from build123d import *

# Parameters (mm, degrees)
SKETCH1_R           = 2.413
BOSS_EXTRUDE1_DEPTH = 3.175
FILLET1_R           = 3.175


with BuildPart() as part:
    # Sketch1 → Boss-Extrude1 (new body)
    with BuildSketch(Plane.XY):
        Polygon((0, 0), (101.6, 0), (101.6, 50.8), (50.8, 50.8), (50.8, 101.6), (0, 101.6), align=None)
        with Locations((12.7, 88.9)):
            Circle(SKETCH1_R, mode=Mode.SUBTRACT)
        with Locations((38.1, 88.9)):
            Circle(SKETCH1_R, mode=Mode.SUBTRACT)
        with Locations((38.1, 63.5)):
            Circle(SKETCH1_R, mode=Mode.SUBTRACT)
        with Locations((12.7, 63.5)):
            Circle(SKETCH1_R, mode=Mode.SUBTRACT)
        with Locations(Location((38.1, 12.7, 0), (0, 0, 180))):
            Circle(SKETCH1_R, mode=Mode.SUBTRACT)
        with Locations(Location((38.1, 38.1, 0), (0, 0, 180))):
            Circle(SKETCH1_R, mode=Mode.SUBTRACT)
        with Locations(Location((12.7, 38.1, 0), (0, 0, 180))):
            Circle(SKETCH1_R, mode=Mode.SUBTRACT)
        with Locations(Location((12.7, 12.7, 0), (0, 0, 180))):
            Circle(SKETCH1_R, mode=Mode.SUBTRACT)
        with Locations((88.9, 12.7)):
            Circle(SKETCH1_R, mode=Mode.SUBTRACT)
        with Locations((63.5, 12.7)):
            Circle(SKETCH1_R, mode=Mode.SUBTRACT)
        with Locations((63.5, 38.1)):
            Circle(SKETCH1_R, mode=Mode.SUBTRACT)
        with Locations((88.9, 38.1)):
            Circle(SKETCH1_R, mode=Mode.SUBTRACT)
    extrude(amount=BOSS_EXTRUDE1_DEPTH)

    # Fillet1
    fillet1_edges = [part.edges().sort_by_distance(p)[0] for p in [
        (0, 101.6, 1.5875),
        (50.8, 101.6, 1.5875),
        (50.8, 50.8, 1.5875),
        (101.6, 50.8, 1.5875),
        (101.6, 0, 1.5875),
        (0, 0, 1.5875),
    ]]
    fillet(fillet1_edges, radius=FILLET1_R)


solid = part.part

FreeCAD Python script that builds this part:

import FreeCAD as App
import Part
import Sketcher

V = App.Vector
Q = App.Units.Quantity


def edges_at(feature, points):
    """Names of the edges that pass closest to the given points."""
    edges = feature.Shape.Edges
    near = lambda p: min(range(len(edges)), key=lambda i: edges[i].distToShape(Part.Vertex(*p))[0])
    return sorted({f"Edge{near(p) + 1}" for p in points})

doc = App.newDocument("Part")
body = doc.addObject("PartDesign::Body", "Body")

# Sketch on XY plane
sketch1 = body.newObject("Sketcher::SketchObject", "Sketch")
sketch1.AttachmentSupport = (doc.getObject("XY_Plane"), [""])
sketch1.MapMode = "FlatFace"
sketch1.addGeometry([
    Part.LineSegment(V(0, 0, 0), V(101.6, 0, 0)),  # 0
    Part.LineSegment(V(101.6, 0, 0), V(101.6, 50.8, 0)),  # 1
    Part.LineSegment(V(101.6, 50.8, 0), V(50.8, 50.8, 0)),  # 2
    Part.LineSegment(V(50.8, 50.8, 0), V(50.8, 101.6, 0)),  # 3
    Part.LineSegment(V(50.8, 101.6, 0), V(0, 101.6, 0)),  # 4
    Part.LineSegment(V(0, 101.6, 0), V(0, 0, 0)),  # 5
    Part.Circle(V(12.7, 12.7, 0), V(0, 0, 1), 2.4),  # 6
    Part.Circle(V(38.1, 12.7, 0), V(0, 0, 1), 2.4),  # 7
    Part.Circle(V(12.7, 38.1, 0), V(0, 0, 1), 2.4),  # 8
    Part.Circle(V(38.1, 38.1, 0), V(0, 0, 1), 2.4),  # 9
    Part.Circle(V(63.5, 12.7, 0), V(0, 0, 1), 2.4),  # 10
    Part.Circle(V(88.9, 12.7, 0), V(0, 0, 1), 2.4),  # 11
    Part.Circle(V(63.5, 38.1, 0), V(0, 0, 1), 2.4),  # 12
    Part.Circle(V(88.9, 38.1, 0), V(0, 0, 1), 2.4),  # 13
    Part.Circle(V(12.7, 63.5, 0), V(0, 0, 1), 2.4),  # 14
    Part.Circle(V(38.1, 63.5, 0), V(0, 0, 1), 2.4),  # 15
    Part.Circle(V(12.7, 88.9, 0), V(0, 0, 1), 2.4),  # 16
    Part.Circle(V(38.1, 88.9, 0), V(0, 0, 1), 2.4),  # 17
], False)
sketch1.addConstraint([
    Sketcher.Constraint("Coincident", 0, 2, 1, 1),
    Sketcher.Constraint("Coincident", 1, 2, 2, 1),
    Sketcher.Constraint("Coincident", 2, 2, 3, 1),
    Sketcher.Constraint("Coincident", 3, 2, 4, 1),
    Sketcher.Constraint("Coincident", 4, 2, 5, 1),
    Sketcher.Constraint("Coincident", 5, 2, 0, 1),
    Sketcher.Constraint("Horizontal", 0),
    Sketcher.Constraint("Vertical", 1),
    Sketcher.Constraint("Horizontal", 2),
    Sketcher.Constraint("Vertical", 3),
    Sketcher.Constraint("Horizontal", 4),
    Sketcher.Constraint("Vertical", 5),
    Sketcher.Constraint("Coincident", 5, 2, -1, 1),
    Sketcher.Constraint("Equal", 6, 7),
    Sketcher.Constraint("Equal", 7, 8),
    Sketcher.Constraint("Equal", 8, 9),
    Sketcher.Constraint("Equal", 9, 10),
    Sketcher.Constraint("Equal", 10, 11),
    Sketcher.Constraint("Equal", 11, 12),
    Sketcher.Constraint("Equal", 12, 13),
    Sketcher.Constraint("Equal", 13, 14),
    Sketcher.Constraint("Equal", 14, 15),
    Sketcher.Constraint("Equal", 15, 16),
    Sketcher.Constraint("Equal", 16, 17),
    Sketcher.Constraint("Horizontal", 6, 3, 7, 3),
    Sketcher.Constraint("Horizontal", 8, 3, 9, 3),
    Sketcher.Constraint("Horizontal", 7, 3, 10, 3),
    Sketcher.Constraint("Horizontal", 10, 3, 11, 3),
    Sketcher.Constraint("Horizontal", 9, 3, 12, 3),
    Sketcher.Constraint("Horizontal", 12, 3, 13, 3),
    Sketcher.Constraint("Horizontal", 14, 3, 15, 3),
    Sketcher.Constraint("Horizontal", 16, 3, 17, 3),
    Sketcher.Constraint("Vertical", 6, 3, 8, 3),
    Sketcher.Constraint("Vertical", 7, 3, 9, 3),
    Sketcher.Constraint("Vertical", 10, 3, 12, 3),
    Sketcher.Constraint("Vertical", 11, 3, 13, 3),
    Sketcher.Constraint("Vertical", 8, 3, 14, 3),
    Sketcher.Constraint("Vertical", 9, 3, 15, 3),
    Sketcher.Constraint("Vertical", 14, 3, 16, 3),
    Sketcher.Constraint("Vertical", 15, 3, 17, 3),
    Sketcher.Constraint("Equal", 2, 4),
    Sketcher.Constraint("Equal", 4, 1),
    Sketcher.Constraint("Equal", 1, 3),
    Sketcher.Constraint("Diameter", 6, Q("0.19 in")),
    Sketcher.Constraint("DistanceX", 0, 1, 0, 2, Q("4 in")),
    Sketcher.Constraint("DistanceX", 6, 3, 7, 3, Q("1 in")),
    Sketcher.Constraint("DistanceY", 6, 3, 8, 3, Q("1 in")),
    Sketcher.Constraint("DistanceX", 7, 3, 10, 3, Q("1 in")),
    Sketcher.Constraint("DistanceX", 10, 3, 11, 3, Q("1 in")),
    Sketcher.Constraint("DistanceY", 8, 3, 14, 3, Q("1 in")),
    Sketcher.Constraint("DistanceY", 14, 3, 16, 3, Q("1 in")),
    Sketcher.Constraint("DistanceX", -1, 1, 6, 3, Q("0.5 in")),
    Sketcher.Constraint("DistanceY", -1, 1, 6, 3, Q("0.5 in")),
])
pad1 = body.newObject("PartDesign::Pad", "Pad")
pad1.Profile = sketch1
pad1.Length = Q("0.125 in")
doc.recompute()

fillet = body.newObject("PartDesign::Fillet", "Fillet")
fillet.Base = (pad1, edges_at(pad1, [
    (0, 101.6, 1.587),
    (50.8, 101.6, 1.587),
    (50.8, 50.8, 1.587),
    (101.6, 50.8, 1.587),
    (101.6, 0, 1.587),
    (0, 0, 1.587),
]))
fillet.Radius = Q("0.125 in")

doc.recompute()
